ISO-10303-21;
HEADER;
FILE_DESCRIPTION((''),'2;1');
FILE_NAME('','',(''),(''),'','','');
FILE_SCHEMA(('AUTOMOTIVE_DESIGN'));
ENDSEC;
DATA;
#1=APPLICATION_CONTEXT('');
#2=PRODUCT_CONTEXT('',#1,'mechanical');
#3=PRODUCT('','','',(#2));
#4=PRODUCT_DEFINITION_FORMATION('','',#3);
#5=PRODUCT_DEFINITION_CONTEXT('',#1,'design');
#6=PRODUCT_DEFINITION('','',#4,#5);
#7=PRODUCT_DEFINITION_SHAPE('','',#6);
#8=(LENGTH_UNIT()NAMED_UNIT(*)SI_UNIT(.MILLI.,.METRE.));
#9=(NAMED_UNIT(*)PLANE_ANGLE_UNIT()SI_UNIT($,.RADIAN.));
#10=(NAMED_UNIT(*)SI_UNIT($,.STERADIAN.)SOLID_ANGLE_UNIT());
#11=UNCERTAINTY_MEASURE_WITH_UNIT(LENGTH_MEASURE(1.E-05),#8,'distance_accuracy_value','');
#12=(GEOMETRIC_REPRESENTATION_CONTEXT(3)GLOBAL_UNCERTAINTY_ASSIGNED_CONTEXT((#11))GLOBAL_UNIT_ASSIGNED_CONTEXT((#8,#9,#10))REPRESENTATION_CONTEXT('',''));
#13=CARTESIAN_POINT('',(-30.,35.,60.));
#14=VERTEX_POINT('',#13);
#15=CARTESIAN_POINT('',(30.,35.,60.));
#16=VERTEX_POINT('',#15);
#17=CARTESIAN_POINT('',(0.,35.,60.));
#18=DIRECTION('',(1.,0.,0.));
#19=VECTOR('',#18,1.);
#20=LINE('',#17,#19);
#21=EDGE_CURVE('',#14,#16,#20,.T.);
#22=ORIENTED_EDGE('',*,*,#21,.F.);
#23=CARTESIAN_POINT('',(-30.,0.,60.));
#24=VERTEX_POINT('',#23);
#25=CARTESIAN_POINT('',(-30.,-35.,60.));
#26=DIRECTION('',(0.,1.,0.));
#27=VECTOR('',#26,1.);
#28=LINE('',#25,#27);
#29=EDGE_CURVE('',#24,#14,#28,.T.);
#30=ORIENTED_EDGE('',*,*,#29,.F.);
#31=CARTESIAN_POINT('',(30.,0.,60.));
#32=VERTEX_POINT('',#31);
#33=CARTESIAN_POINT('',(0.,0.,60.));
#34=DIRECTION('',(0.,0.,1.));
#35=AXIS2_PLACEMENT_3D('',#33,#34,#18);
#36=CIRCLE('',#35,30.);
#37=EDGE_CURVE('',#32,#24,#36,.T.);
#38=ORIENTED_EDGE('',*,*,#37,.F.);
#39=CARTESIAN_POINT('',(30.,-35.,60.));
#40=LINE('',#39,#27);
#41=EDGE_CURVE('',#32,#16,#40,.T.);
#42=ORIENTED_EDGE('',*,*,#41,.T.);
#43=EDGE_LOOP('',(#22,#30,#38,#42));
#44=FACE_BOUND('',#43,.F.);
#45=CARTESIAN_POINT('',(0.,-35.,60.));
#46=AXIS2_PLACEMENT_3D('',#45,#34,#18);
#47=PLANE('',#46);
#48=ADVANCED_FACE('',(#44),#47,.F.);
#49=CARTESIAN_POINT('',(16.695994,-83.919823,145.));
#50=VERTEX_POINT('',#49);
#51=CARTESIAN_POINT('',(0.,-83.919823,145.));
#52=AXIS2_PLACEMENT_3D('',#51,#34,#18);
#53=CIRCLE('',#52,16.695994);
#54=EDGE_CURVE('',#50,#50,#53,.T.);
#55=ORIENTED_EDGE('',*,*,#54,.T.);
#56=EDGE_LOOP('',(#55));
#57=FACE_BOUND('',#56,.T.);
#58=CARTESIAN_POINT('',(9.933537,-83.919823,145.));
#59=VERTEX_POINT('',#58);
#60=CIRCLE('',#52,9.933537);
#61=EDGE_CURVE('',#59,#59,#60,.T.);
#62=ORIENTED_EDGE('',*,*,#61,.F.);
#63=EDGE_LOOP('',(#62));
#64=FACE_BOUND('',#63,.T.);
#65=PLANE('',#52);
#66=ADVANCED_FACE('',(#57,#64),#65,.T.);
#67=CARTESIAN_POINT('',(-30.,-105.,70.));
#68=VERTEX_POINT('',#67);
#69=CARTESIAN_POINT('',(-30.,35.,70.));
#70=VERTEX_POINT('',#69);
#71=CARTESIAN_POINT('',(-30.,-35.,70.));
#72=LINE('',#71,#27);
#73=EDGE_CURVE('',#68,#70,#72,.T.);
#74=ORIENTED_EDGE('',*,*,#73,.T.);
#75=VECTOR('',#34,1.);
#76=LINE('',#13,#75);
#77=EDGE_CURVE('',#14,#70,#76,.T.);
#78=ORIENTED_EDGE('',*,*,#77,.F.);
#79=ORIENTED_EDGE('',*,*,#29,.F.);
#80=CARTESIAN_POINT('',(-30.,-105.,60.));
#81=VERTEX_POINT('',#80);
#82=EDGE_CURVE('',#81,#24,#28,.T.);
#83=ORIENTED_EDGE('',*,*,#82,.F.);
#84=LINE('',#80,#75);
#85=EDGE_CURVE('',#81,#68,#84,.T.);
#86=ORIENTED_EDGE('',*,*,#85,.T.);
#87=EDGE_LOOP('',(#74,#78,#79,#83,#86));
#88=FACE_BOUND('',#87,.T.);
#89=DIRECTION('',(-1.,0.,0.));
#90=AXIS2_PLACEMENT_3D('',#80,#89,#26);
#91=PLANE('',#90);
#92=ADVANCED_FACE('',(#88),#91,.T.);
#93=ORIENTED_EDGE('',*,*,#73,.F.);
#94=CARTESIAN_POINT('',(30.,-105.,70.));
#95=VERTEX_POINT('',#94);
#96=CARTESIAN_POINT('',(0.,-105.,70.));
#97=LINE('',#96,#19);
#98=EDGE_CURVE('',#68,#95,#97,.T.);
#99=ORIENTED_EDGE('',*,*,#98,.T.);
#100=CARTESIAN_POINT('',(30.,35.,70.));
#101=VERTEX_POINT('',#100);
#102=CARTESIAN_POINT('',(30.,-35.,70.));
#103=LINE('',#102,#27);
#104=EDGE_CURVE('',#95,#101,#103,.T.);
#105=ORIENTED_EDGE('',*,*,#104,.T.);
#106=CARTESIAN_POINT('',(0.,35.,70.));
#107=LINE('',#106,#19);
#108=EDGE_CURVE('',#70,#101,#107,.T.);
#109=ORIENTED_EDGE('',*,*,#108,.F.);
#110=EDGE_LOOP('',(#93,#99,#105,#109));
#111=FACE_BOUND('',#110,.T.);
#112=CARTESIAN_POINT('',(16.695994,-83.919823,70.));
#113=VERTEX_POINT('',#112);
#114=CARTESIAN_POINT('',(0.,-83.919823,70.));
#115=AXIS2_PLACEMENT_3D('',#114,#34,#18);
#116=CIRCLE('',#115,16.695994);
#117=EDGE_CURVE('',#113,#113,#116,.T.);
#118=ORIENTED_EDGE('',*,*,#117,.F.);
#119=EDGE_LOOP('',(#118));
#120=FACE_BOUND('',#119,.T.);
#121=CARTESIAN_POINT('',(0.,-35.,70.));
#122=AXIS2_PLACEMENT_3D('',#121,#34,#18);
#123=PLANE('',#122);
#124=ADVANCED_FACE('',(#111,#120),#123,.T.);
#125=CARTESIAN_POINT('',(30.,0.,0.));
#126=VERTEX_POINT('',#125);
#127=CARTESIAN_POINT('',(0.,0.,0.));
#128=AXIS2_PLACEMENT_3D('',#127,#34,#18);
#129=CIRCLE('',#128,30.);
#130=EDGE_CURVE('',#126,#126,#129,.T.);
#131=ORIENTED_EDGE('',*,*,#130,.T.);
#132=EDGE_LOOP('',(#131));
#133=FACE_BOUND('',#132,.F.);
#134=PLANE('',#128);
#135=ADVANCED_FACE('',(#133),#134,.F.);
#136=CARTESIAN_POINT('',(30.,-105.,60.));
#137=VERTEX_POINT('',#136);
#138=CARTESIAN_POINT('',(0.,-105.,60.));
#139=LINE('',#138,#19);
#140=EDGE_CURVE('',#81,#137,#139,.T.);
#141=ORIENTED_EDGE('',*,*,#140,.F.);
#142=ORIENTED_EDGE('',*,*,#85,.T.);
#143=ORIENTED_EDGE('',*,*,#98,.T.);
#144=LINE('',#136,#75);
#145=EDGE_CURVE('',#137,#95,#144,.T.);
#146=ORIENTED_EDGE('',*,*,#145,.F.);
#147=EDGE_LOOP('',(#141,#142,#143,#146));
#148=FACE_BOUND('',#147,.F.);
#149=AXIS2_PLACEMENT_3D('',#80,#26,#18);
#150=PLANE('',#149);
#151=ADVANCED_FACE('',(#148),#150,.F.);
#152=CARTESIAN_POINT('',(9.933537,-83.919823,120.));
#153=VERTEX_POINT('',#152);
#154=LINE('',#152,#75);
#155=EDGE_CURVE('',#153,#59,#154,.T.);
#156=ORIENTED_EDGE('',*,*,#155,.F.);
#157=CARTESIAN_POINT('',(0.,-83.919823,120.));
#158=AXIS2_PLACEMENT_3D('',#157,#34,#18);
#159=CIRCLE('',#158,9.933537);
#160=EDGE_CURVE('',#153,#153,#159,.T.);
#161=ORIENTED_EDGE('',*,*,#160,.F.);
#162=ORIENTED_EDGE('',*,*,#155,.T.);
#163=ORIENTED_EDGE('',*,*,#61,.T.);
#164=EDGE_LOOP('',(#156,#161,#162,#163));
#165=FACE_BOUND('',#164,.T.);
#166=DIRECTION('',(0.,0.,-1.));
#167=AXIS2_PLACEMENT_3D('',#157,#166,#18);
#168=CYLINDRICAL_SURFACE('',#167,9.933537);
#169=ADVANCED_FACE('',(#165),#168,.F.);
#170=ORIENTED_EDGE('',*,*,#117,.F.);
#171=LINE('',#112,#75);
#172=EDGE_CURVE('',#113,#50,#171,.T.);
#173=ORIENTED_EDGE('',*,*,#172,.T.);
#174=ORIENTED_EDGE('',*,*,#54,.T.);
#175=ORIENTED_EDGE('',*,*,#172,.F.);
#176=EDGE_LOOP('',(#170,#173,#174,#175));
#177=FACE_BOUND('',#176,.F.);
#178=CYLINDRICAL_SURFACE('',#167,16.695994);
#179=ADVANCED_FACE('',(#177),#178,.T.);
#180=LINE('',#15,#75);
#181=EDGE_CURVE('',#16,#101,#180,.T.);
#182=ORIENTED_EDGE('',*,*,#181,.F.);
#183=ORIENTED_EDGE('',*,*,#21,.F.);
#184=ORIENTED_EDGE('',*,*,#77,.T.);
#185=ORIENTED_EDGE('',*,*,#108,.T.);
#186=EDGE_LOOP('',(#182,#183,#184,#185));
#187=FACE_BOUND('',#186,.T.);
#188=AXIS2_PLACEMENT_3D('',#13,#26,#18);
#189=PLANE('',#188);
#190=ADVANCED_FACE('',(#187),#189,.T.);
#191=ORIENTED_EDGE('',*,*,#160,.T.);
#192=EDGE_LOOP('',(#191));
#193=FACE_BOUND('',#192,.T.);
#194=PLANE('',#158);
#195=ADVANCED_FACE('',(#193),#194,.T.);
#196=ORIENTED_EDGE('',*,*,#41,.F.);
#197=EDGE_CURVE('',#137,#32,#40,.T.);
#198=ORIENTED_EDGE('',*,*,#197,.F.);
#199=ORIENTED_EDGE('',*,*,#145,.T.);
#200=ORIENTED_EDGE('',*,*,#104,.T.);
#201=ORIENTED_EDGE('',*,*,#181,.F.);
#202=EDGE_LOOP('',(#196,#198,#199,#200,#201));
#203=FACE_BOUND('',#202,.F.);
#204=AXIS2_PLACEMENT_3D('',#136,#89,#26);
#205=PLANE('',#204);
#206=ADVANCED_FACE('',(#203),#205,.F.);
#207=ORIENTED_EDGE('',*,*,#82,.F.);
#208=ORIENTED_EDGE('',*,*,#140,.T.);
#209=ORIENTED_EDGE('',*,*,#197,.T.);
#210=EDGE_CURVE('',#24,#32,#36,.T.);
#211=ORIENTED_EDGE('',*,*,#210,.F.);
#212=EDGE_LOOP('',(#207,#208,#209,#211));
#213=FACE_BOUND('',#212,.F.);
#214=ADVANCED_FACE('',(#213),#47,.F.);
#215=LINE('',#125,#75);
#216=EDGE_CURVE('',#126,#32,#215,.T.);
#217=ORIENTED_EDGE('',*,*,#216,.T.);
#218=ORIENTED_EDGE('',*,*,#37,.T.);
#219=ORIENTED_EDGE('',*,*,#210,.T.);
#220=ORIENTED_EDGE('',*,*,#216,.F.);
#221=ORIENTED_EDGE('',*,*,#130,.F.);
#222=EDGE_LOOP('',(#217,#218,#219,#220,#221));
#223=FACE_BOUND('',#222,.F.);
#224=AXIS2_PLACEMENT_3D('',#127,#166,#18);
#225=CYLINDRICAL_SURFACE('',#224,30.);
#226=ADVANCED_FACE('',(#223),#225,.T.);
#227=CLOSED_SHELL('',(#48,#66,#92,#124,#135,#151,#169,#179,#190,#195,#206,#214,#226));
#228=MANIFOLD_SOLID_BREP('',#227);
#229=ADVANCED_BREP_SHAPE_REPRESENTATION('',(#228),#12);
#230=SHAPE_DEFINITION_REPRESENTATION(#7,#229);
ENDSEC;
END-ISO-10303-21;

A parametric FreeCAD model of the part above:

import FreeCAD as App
import Part
import Sketcher
from FreeCAD import Vector
Q = App.Units.Quantity


def add_polygon(sketch, points):
    """Adds a closed chain of lines whose ends are joined by coincident constraints."""
    first, n = sketch.GeometryCount, len(points)
    for a, b in zip(points, points[1:] + points[:1]):
        sketch.addGeometry(Part.LineSegment(App.Vector(*a, 0), App.Vector(*b, 0)), False)
    for i in range(n):
        sketch.addConstraint(Sketcher.Constraint("Coincident", first + i, 2, first + (i + 1) % n, 1))

doc = App.newDocument("Part")
body = doc.addObject("PartDesign::Body", "Body")

# Sketch on XY plane
sketch1 = body.newObject("Sketcher::SketchObject", "Sketch")
sketch1.AttachmentSupport = (doc.getObject("XY_Plane"), [""])
sketch1.MapMode = "FlatFace"
sketch1.addGeometry(Part.Circle(Vector(0, 0, 0), Vector(0, 0, 1), 30), False)
sketch1.addConstraint([
    Sketcher.Constraint("Coincident", 0, 3, -1, 1),
    Sketcher.Constraint("Diameter", 0, Q("60 mm")),
])
pad1 = body.newObject("PartDesign::Pad", "Pad")
pad1.Profile = sketch1
pad1.Length = 60

# Sketch on XY plane
sketch2 = body.newObject("Sketcher::SketchObject", "Sketch001")
sketch2.AttachmentSupport = (doc.getObject("XY_Plane"), [""])
sketch2.MapMode = "FlatFace"
sketch2.AttachmentOffset = App.Placement(Vector(0, 0, 60), App.Rotation())
add_polygon(sketch2, [(-30, 35), (-30, -105), (30, -105), (30, 35)])  # lines 0-3
sketch2.addConstraint([
    Sketcher.Constraint("Vertical", 0),
    Sketcher.Constraint("Horizontal", 1),
    Sketcher.Constraint("Vertical", 2),
    Sketcher.Constraint("Horizontal", 3),
    Sketcher.Constraint("DistanceX", 1, 1, 1, 2, Q("60 mm")),
    Sketcher.Constraint("DistanceY", 0, 2, 0, 1, Q("140 mm")),
    Sketcher.Constraint("DistanceX", 0, 2, -1, 1, Q("30 mm")),
    Sketcher.Constraint("DistanceY", 0, 2, -1, 1, Q("105 mm")),
])
pad2 = body.newObject("PartDesign::Pad", "Pad001")
pad2.Profile = sketch2
pad2.Length = 10

# Sketch on XY plane
sketch3 = body.newObject("Sketcher::SketchObject", "Sketch002")
sketch3.AttachmentSupport = (doc.getObject("XY_Plane"), [""])
sketch3.MapMode = "FlatFace"
sketch3.AttachmentOffset = App.Placement(Vector(0, 0, 70), App.Rotation())
sketch3.addGeometry(Part.Circle(Vector(0, -84, 0), Vector(0, 0, 1), 17), False)
sketch3.addConstraint([
    Sketcher.Constraint("PointOnObject", 0, 3, -2),
    Sketcher.Constraint("Diameter", 0, Q("33.391988 mm")),
    Sketcher.Constraint("DistanceY", 0, 3, -1, 1, Q("83.919823 mm")),
])
pad3 = body.newObject("PartDesign::Pad", "Pad002")
pad3.Profile = sketch3
pad3.Length = 50

# Sketch on XY plane
sketch4 = body.newObject("Sketcher::SketchObject", "Sketch003")
sketch4.AttachmentSupport = (doc.getObject("XY_Plane"), [""])
sketch4.MapMode = "FlatFace"
sketch4.AttachmentOffset = App.Placement(Vector(0, 0, 120), App.Rotation())
sketch4.addGeometry([
    Part.Circle(Vector(0, -84, 0), Vector(0, 0, 1), 17),
    Part.Circle(Vector(0, -84, 0), Vector(0, 0, 1), 10),
], False)
sketch4.addConstraint([
    Sketcher.Constraint("Coincident", 1, 3, 0, 3),
    Sketcher.Constraint("PointOnObject", 0, 3, -2),
    Sketcher.Constraint("Diameter", 0, Q("33.391988 mm")),
    Sketcher.Constraint("Diameter", 1, Q("19.867074 mm")),
    Sketcher.Constraint("DistanceY", 0, 3, -1, 1, Q("83.919823 mm")),
])
pad4 = body.newObject("PartDesign::Pad", "Pad003")
pad4.Profile = sketch4
pad4.Length = 25

doc.recompute()
